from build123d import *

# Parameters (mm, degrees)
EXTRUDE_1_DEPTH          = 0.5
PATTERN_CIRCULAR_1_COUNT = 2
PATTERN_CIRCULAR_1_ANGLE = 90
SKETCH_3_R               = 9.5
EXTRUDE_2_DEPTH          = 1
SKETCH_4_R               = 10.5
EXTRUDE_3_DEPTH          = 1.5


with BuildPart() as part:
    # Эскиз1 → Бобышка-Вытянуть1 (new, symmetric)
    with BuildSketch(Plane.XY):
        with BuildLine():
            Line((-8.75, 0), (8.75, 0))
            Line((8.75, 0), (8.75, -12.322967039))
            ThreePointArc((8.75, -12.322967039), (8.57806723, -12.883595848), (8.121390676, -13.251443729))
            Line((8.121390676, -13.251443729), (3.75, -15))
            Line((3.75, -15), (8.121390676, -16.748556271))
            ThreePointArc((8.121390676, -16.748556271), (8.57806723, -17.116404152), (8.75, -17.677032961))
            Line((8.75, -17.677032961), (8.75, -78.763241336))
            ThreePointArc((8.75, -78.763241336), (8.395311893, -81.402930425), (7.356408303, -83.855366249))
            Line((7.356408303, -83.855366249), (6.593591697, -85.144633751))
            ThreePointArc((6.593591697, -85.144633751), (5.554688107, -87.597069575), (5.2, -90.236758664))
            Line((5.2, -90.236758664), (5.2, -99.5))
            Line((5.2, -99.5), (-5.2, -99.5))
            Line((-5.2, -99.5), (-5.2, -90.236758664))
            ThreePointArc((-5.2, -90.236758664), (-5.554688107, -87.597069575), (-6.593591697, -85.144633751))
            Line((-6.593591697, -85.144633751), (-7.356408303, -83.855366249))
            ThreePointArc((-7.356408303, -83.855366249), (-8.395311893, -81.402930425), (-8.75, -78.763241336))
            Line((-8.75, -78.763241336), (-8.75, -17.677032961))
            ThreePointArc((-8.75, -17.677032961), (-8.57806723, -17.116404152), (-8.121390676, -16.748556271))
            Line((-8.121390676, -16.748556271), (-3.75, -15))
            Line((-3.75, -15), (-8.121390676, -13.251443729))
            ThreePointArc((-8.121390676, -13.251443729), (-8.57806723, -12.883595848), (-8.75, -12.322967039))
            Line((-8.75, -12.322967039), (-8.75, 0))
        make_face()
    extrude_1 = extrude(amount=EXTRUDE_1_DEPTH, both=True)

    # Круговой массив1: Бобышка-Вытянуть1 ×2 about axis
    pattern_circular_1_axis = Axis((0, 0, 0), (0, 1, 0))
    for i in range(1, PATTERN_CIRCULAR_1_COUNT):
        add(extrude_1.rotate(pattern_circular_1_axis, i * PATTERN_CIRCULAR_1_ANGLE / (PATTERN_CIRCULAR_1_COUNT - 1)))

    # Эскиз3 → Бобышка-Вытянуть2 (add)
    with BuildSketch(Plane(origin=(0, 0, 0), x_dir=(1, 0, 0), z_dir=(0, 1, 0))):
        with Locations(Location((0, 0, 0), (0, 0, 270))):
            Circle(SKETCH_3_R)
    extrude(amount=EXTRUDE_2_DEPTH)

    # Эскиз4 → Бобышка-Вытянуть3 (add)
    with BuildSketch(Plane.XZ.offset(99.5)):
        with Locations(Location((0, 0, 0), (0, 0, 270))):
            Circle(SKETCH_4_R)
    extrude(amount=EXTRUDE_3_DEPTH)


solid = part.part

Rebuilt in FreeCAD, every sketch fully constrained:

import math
import FreeCAD as App
import Part
import Sketcher

V = App.Vector
Q = App.Units.Quantity

doc = App.newDocument("Part")
body = doc.addObject("PartDesign::Body", "Body")

# Sketch on XY plane
sketch1 = doc.addObject("Sketcher::SketchObject", "Sketch")
body.addObject(sketch1)
sketch1.AttachmentSupport = (doc.XY_Plane, [""])
sketch1.MapMode = "FlatFace"
sketch1.addGeometry(Part.LineSegment(V(8.8, 0, 0), V(-8.8, 0, 0)), False)
sketch1.addGeometry(Part.LineSegment(V(-8.8, 0, 0), V(-8.8, -12.3, 0)), False)
sketch1.addGeometry(Part.ArcOfCircle(Part.Circle(V(-7.8, -12.3, 0), V(0, 0, 1), 1), math.radians(-180), math.radians(-112)), False)
sketch1.addGeometry(Part.LineSegment(V(-8.1, -13.3, 0), V(-3.8, -15, 0)), False)
sketch1.addGeometry(Part.LineSegment(V(-3.8, -15, 0), V(-8.1, -16.7, 0)), False)
sketch1.addGeometry(Part.ArcOfCircle(Part.Circle(V(-7.8, -17.7, 0), V(0, 0, 1), 1), math.radians(112), math.radians(180)), False)
sketch1.addGeometry(Part.LineSegment(V(-8.8, -17.7, 0), V(-8.8, -78.8, 0)), False)
sketch1.addGeometry(Part.ArcOfCircle(Part.Circle(V(1.3, -78.8, 0), V(0, 0, 1), 10), math.radians(-180), math.radians(-149)), False)
sketch1.addGeometry(Part.LineSegment(V(-7.4, -83.9, 0), V(-6.6, -85.1, 0)), False)
sketch1.addGeometry(Part.ArcOfCircle(Part.Circle(V(-15.2, -90.2, 0), V(0, 0, 1), 10), math.radians(0), math.radians(31)), False)
sketch1.addGeometry(Part.LineSegment(V(-5.2, -90.2, 0), V(-5.2, -99.5, 0)), False)
sketch1.addGeometry(Part.LineSegment(V(-5.2, -99.5, 0), V(5.2, -99.5, 0)), False)
sketch1.addGeometry(Part.LineSegment(V(5.2, -99.5, 0), V(5.2, -90.2, 0)), False)
sketch1.addGeometry(Part.ArcOfCircle(Part.Circle(V(15.2, -90.2, 0), V(0, 0, 1), 10), math.radians(149), math.radians(180)), False)
sketch1.addGeometry(Part.LineSegment(V(6.6, -85.1, 0), V(7.4, -83.9, 0)), False)
sketch1.addGeometry(Part.ArcOfCircle(Part.Circle(V(-1.3, -78.8, 0), V(0, 0, 1), 10), math.radians(-31), math.radians(0)), False)
sketch1.addGeometry(Part.LineSegment(V(8.8, -78.8, 0), V(8.8, -17.7, 0)), False)
sketch1.addGeometry(Part.ArcOfCircle(Part.Circle(V(7.8, -17.7, 0), V(0, 0, 1), 1), math.radians(0), math.radians(68)), False)
sketch1.addGeometry(Part.LineSegment(V(8.1, -16.7, 0), V(3.8, -15, 0)), False)
sketch1.addGeometry(Part.LineSegment(V(3.8, -15, 0), V(8.1, -13.3, 0)), False)
sketch1.addGeometry(Part.ArcOfCircle(Part.Circle(V(7.8, -12.3, 0), V(0, 0, 1), 1), math.radians(-68), math.radians(0)), False)
sketch1.addGeometry(Part.LineSegment(V(8.8, -12.3, 0), V(8.8, 0, 0)), False)
sketch1.addConstraint(Sketcher.Constraint("Coincident", 0, 2, 1, 1))
sketch1.addConstraint(Sketcher.Constraint("Tangent", 1, 2, 2, 1))
sketch1.addConstraint(Sketcher.Constraint("Tangent", 2, 2, 3, 1))
sketch1.addConstraint(Sketcher.Constraint("Coincident", 3, 2, 4, 1))
sketch1.addConstraint(Sketcher.Constraint("Tangent", 4, 2, 5, 1))
sketch1.addConstraint(Sketcher.Constraint("Tangent", 5, 2, 6, 1))
sketch1.addConstraint(Sketcher.Constraint("Tangent", 6, 2, 7, 1))
sketch1.addConstraint(Sketcher.Constraint("Tangent", 7, 2, 8, 1))
sketch1.addConstraint(Sketcher.Constraint("Tangent", 8, 2, 9, 2))
sketch1.addConstraint(Sketcher.Constraint("Tangent", 9, 1, 10, 1))
sketch1.addConstraint(Sketcher.Constraint("Coincident", 10, 2, 11, 1))
sketch1.addConstraint(Sketcher.Constraint("Coincident", 11, 2, 12, 1))
sketch1.addConstraint(Sketcher.Constraint("Tangent", 12, 2, 13, 2))
sketch1.addConstraint(Sketcher.Constraint("Tangent", 13, 1, 14, 1))
sketch1.addConstraint(Sketcher.Constraint("Tangent", 14, 2, 15, 1))
sketch1.addConstraint(Sketcher.Constraint("Tangent", 15, 2, 16, 1))
sketch1.addConstraint(Sketcher.Constraint("Tangent", 16, 2, 17, 1))
sketch1.addConstraint(Sketcher.Constraint("Tangent", 17, 2, 18, 1))
sketch1.addConstraint(Sketcher.Constraint("Coincident", 18, 2, 19, 1))
sketch1.addConstraint(Sketcher.Constraint("Tangent", 19, 2, 20, 1))
sketch1.addConstraint(Sketcher.Constraint("Tangent", 20, 2, 21, 1))
sketch1.addConstraint(Sketcher.Constraint("Coincident", 21, 2, 0, 1))
sketch1.addConstraint(Sketcher.Constraint("Horizontal", 0))
sketch1.addConstraint(Sketcher.Constraint("Vertical", 1))
sketch1.addConstraint(Sketcher.Constraint("Vertical", 6))
sketch1.addConstraint(Sketcher.Constraint("Vertical", 10))
sketch1.addConstraint(Sketcher.Constraint("Horizontal", 11))
sketch1.addConstraint(Sketcher.Constraint("Vertical", 12))
sketch1.addConstraint(Sketcher.Constraint("Vertical", 16))
sketch1.addConstraint(Sketcher.Constraint("Vertical", 21))
sketch1.addConstraint(Sketcher.Constraint("Equal", 2, 5))
sketch1.addConstraint(Sketcher.Constraint("Equal", 7, 9))
sketch1.addConstraint(Sketcher.Constraint("Equal", 9, 13))
sketch1.addConstraint(Sketcher.Constraint("Equal", 13, 15))
sketch1.addConstraint(Sketcher.Constraint("Equal", 5, 17))
sketch1.addConstraint(Sketcher.Constraint("Equal", 17, 20))
sketch1.addConstraint(Sketcher.Constraint("Symmetric", 0, 2, 21, 2, -1, 1))
sketch1.addConstraint(Sketcher.Constraint("Symmetric", 9, 3, 13, 3, -2))
sketch1.addConstraint(Sketcher.Constraint("Symmetric", 7, 3, 15, 3, -2))
sketch1.addConstraint(Sketcher.Constraint("Symmetric", 4, 2, 17, 2, -2))
sketch1.addConstraint(Sketcher.Constraint("Symmetric", 2, 2, 19, 2, -2))
sketch1.addConstraint(Sketcher.Constraint("Parallel", 3, 18))
sketch1.addConstraint(Sketcher.Constraint("Vertical", 2, 3, 5, 3))
sketch1.addConstraint(Sketcher.Constraint("Radius", 2, Q("1 mm")))
sketch1.addConstraint(Sketcher.Constraint("Radius", 7, Q("10 mm")))
sketch1.addConstraint(Sketcher.Constraint("DistanceX", 0, 2, 0, 1, Q("17.5 mm")))
sketch1.addConstraint(Sketcher.Constraint("DistanceX", 11, 1, 11, 2, Q("10.4 mm")))
sketch1.addConstraint(Sketcher.Constraint("DistanceY", 3, 2, -1, 1, Q("15 mm")))
sketch1.addConstraint(Sketcher.Constraint("DistanceX", 5, 3, 3, 2, Q("4 mm")))
sketch1.addConstraint(Sketcher.Constraint("DistanceY", 10, 2, -1, 1, Q("99.5 mm")))
sketch1.addConstraint(Sketcher.Constraint("DistanceY", 6, 2, 6, 1, Q("61.086208 mm")))
sketch1.addConstraint(Sketcher.Constraint("DistanceY", 10, 2, 10, 1, Q("9.263241 mm")))
sketch1.addConstraint(Sketcher.Constraint("Distance", 3, Q("4.708132 mm")))
pad1 = doc.addObject("PartDesign::Pad", "Pad")
body.addObject(pad1)
pad1.Profile = sketch1
pad1.Length = 1
pad1.Midplane = True
doc.recompute()

polarpattern = doc.addObject("PartDesign::PolarPattern", "PolarPattern")
body.addObject(polarpattern)
polarpattern.Originals = [pad1]
polarpattern.Axis = (doc.Y_Axis, [""])
polarpattern.Angle = 90
polarpattern.Occurrences = 2
body.Tip = polarpattern

# Sketch on XZ plane
sketch2 = doc.addObject("Sketcher::SketchObject", "Sketch001")
body.addObject(sketch2)
sketch2.AttachmentSupport = (doc.XZ_Plane, [""])
sketch2.MapMode = "FlatFace"
sketch2.addGeometry(Part.Circle(V(0, 0, 0), V(0, 0, 1), 10), False)
sketch2.addConstraint(Sketcher.Constraint("Coincident", 0, 3, -1, 1))
sketch2.addConstraint(Sketcher.Constraint("Diameter", 0, Q("19 mm")))
pad2 = doc.addObject("PartDesign::Pad", "Pad001")
body.addObject(pad2)
pad2.Profile = sketch2
pad2.Length = 1
pad2.Reversed = True

# Sketch on XZ plane
sketch3 = doc.addObject("Sketcher::SketchObject", "Sketch002")
body.addObject(sketch3)
sketch3.AttachmentSupport = (doc.XZ_Plane, [""])
sketch3.MapMode = "FlatFace"
sketch3.AttachmentOffset = App.Placement(V(0, 0, 99.5), App.Rotation())
sketch3.addGeometry(Part.Circle(V(0, 0, 0), V(0, 0, 1), 10), False)
sketch3.addConstraint(Sketcher.Constraint("Coincident", 0, 3, -1, 1))
sketch3.addConstraint(Sketcher.Constraint("Diameter", 0, Q("21 mm")))
pad3 = doc.addObject("PartDesign::Pad", "Pad002")
body.addObject(pad3)
pad3.Profile = sketch3
pad3.Length = 1.5

doc.recompute()
